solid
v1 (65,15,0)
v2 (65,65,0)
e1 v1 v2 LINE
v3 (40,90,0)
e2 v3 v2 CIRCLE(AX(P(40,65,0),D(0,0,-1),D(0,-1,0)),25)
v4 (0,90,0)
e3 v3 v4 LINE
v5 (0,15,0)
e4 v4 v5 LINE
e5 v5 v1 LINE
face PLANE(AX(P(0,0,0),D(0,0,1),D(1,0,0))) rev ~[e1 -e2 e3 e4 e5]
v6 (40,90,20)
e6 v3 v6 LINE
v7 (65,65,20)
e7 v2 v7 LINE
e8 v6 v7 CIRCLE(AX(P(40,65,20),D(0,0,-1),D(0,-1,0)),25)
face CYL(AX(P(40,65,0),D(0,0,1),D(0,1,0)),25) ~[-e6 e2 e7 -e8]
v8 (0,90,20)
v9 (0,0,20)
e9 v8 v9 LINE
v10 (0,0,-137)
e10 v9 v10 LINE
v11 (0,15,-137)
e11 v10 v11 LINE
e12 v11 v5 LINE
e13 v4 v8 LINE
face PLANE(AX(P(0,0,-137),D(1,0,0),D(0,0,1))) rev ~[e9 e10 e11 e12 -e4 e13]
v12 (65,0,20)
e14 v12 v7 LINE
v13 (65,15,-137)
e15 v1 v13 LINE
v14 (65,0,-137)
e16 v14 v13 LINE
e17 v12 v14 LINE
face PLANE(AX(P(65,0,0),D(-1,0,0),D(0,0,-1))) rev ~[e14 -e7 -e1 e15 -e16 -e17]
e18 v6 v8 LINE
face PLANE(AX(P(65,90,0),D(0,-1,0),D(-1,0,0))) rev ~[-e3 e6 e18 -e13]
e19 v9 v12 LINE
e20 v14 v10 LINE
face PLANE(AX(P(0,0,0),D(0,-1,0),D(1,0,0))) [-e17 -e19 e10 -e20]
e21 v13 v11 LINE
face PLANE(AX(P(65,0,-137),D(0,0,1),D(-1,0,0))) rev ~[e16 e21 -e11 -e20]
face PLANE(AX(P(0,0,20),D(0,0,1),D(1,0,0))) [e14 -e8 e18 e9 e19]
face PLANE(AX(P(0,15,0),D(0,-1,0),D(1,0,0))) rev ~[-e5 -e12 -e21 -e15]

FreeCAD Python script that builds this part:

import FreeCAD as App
import Part
import Sketcher
from FreeCAD import Vector


def edges_at(feature, points):
    """Names of the edges that pass closest to the given points."""
    edges = feature.Shape.Edges
    near = lambda p: min(range(len(edges)), key=lambda i: edges[i].distToShape(Part.Vertex(*p))[0])
    return sorted({f"Edge{near(p) + 1}" for p in points})

doc = App.newDocument("Part")
body = doc.addObject("PartDesign::Body", "Body")

# Sketch on XY plane
sketch1 = doc.addObject("Sketcher::SketchObject", "Sketch")
body.addObject(sketch1)
sketch1.AttachmentSupport = (doc.XY_Plane, [""])
sketch1.MapMode = "FlatFace"
sketch1.addGeometry([
    Part.LineSegment(Vector(0, 90, 0), Vector(0, 0, 0)),
    Part.LineSegment(Vector(0, 0, 0), Vector(65, 0, 0)),
    Part.LineSegment(Vector(65, 0, 0), Vector(65, 90, 0)),
    Part.LineSegment(Vector(65, 90, 0), Vector(0, 90, 0)),
], False)
sketch1.addConstraint([
    Sketcher.Constraint("Coincident", 0, 2, 1, 1),
    Sketcher.Constraint("Coincident", 1, 2, 2, 1),
    Sketcher.Constraint("Coincident", 2, 2, 3, 1),
    Sketcher.Constraint("Coincident", 3, 2, 0, 1),
    Sketcher.Constraint("Vertical", 0),
    Sketcher.Constraint("Horizontal", 1),
    Sketcher.Constraint("Vertical", 2),
    Sketcher.Constraint("Horizontal", 3),
    Sketcher.Constraint("Coincident", 0, 2, -1, 1),
    Sketcher.Constraint("DistanceX", 1, 1, 1, 2, 65.0),
    Sketcher.Constraint("DistanceY", 0, 2, 0, 1, 90.0),
])
pad1 = doc.addObject("PartDesign::Pad", "Pad")
body.addObject(pad1)
pad1.Profile = sketch1
pad1.Length = 20
doc.recompute()

fillet = doc.addObject("PartDesign::Fillet", "Fillet")
body.addObject(fillet)
fillet.Base = (pad1, edges_at(pad1, [(65, 90, 10)]))
fillet.Radius = 25

# Sketch on XZ plane
sketch2 = doc.addObject("Sketcher::SketchObject", "Sketch001")
body.addObject(sketch2)
sketch2.AttachmentSupport = (doc.XZ_Plane, [""])
sketch2.MapMode = "FlatFace"
sketch2.addGeometry([
    Part.LineSegment(Vector(65, 0, 0), Vector(0, 0, 0)),
    Part.LineSegment(Vector(0, 0, 0), Vector(0, -137, 0)),
    Part.LineSegment(Vector(0, -137, 0), Vector(65, -137, 0)),
    Part.LineSegment(Vector(65, -137, 0), Vector(65, 0, 0)),
], False)
sketch2.addConstraint([
    Sketcher.Constraint("Coincident", 0, 2, 1, 1),
    Sketcher.Constraint("Coincident", 1, 2, 2, 1),
    Sketcher.Constraint("Coincident", 2, 2, 3, 1),
    Sketcher.Constraint("Coincident", 3, 2, 0, 1),
    Sketcher.Constraint("Horizontal", 0),
    Sketcher.Constraint("Vertical", 1),
    Sketcher.Constraint("Horizontal", 2),
    Sketcher.Constraint("Vertical", 3),
    Sketcher.Constraint("Coincident", 0, 2, -1, 1),
    Sketcher.Constraint("DistanceX", 0, 2, 0, 1, 65.0),
    Sketcher.Constraint("DistanceY", 1, 2, 1, 1, 137.0),
])
pad2 = doc.addObject("PartDesign::Pad", "Pad001")
body.addObject(pad2)
pad2.Profile = sketch2
pad2.Length = 15
pad2.Reversed = True

doc.recompute()
